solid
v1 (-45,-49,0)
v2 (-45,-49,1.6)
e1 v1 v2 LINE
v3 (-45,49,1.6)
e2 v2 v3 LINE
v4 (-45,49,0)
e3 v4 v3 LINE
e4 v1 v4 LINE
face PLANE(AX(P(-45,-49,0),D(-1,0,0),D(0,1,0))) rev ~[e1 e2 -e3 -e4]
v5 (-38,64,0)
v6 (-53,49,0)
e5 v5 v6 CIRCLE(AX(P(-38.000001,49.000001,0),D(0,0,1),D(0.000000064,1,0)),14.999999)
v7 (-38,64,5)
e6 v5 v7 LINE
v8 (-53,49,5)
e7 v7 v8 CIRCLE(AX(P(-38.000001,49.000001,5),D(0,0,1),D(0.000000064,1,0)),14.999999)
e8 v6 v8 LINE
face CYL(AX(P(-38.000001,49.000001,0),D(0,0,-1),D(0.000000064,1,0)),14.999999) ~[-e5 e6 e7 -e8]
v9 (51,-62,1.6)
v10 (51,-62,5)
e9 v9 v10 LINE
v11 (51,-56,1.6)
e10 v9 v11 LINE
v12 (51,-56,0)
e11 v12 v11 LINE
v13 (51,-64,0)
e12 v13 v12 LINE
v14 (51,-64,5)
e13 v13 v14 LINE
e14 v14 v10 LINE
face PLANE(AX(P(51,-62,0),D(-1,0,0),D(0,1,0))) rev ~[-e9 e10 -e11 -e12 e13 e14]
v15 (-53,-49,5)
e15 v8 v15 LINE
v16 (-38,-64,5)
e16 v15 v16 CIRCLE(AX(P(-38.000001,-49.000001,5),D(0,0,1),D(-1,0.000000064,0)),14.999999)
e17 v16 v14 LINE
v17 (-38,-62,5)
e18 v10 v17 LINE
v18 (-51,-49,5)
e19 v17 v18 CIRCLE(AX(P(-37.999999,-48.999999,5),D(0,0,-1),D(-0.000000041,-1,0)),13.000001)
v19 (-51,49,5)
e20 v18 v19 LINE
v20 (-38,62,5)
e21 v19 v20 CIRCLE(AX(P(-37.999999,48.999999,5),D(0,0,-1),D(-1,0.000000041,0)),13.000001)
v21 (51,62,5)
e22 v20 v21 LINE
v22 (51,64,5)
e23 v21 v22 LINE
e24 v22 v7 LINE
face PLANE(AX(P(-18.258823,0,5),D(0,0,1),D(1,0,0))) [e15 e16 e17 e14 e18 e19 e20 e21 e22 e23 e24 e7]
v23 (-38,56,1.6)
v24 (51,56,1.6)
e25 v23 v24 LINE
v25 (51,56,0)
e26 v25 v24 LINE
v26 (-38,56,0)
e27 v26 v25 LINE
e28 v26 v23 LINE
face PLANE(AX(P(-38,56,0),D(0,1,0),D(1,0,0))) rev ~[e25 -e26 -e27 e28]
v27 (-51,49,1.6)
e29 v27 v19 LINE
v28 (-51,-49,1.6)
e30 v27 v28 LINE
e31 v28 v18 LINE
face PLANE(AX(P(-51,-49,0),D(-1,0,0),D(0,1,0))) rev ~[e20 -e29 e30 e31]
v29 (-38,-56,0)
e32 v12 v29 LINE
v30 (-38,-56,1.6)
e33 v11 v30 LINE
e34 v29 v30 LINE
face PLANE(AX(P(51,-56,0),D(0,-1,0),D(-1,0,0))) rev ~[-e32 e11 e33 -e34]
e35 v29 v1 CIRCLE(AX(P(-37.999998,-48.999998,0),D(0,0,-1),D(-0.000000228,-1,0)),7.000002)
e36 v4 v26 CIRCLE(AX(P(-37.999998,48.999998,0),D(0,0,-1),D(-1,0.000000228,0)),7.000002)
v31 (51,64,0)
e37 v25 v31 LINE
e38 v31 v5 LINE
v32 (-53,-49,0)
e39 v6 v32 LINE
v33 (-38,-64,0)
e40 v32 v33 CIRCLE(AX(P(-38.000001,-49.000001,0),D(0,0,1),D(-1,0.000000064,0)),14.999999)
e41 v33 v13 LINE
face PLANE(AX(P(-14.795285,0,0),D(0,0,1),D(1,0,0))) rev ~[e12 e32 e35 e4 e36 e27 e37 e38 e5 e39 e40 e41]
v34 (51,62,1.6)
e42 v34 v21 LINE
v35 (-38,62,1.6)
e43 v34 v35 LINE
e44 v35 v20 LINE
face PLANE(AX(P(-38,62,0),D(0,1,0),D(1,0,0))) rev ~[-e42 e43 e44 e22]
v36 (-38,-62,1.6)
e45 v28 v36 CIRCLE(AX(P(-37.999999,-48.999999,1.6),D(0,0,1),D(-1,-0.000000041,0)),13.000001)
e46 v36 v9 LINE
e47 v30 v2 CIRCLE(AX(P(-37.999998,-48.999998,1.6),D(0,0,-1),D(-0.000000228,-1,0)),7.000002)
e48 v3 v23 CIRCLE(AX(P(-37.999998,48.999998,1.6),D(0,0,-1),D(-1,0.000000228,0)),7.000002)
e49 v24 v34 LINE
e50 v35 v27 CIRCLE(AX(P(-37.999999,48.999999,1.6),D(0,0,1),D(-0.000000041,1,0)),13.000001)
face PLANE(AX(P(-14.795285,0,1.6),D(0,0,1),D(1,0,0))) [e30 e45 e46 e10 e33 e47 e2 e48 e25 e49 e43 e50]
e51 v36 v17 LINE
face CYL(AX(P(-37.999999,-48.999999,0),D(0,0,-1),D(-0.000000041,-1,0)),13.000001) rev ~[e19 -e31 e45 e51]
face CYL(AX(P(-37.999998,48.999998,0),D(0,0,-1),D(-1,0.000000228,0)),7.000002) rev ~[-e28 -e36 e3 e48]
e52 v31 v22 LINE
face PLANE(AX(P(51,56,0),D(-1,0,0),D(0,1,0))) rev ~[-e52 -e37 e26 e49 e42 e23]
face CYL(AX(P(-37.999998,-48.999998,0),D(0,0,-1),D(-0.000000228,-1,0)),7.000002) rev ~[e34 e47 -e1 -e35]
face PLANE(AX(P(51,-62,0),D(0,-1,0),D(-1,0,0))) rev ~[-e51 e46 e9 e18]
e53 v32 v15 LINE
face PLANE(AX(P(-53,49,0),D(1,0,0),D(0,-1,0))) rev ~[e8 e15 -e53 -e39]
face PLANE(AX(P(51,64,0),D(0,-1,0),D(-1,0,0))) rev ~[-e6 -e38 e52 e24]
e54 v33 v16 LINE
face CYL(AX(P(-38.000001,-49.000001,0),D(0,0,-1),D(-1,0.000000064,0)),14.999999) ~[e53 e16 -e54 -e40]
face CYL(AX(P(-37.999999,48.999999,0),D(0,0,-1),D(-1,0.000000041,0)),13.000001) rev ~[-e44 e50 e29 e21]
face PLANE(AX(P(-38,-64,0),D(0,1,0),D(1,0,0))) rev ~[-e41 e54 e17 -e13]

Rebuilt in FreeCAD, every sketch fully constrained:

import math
import FreeCAD as App
import Part
import Sketcher
from FreeCAD import Vector
Q = App.Units.Quantity

doc = App.newDocument("Part")
params = doc.addObject("Spreadsheet::Sheet", "Params")
for row, (alias, value) in enumerate([
    ("sketch1_radius", "13.000001 mm"),
    ("sketch1_radius2", "7.000002 mm"),
    ("sketch1_width", "89 mm"),
    ("sketch1_height", "98 mm"),
    ("pad1_length", "1.6 mm"),
    ("sketch2_radius", "13.000001 mm"),
    ("sketch2_radius2", "14.999999 mm"),
    ("sketch2_width", "89 mm"),
    ("sketch2_height", "98 mm"),
    ("pad2_length", "5 mm"),
], start=1):
    params.set(f"A{row}", alias)
    params.set(f"B{row}", "=" + value)
    params.setAlias(f"B{row}", alias)

body = doc.addObject("PartDesign::Body", "Body")

# Sketch on XY plane
sketch1 = doc.addObject("Sketcher::SketchObject", "Sketch")
body.addObject(sketch1)
sketch1.AttachmentSupport = (doc.XY_Plane, [""])
sketch1.MapMode = "FlatFace"
sketch1.addGeometry([
    Part.LineSegment(Vector(51, 62, 0), Vector(-38, 62, 0)),  # 0
    Part.ArcOfCircle(Part.Circle(Vector(-37.999999, 48.999999, 0), Vector(0, 0, 1), 13.000001), math.radians(90.000002), math.radians(179.999998)),  # 1
    Part.LineSegment(Vector(-51, 49, 0), Vector(-51, -49, 0)),  # 2
    Part.ArcOfCircle(Part.Circle(Vector(-37.999999, -48.999999, 0), Vector(0, 0, 1), 13.000001), math.radians(-179.999998), math.radians(-90.000002)),  # 3
    Part.LineSegment(Vector(-38, -62, 0), Vector(51, -62, 0)),  # 4
    Part.LineSegment(Vector(51, -62, 0), Vector(51, -56, 0)),  # 5
    Part.LineSegment(Vector(51, -56, 0), Vector(-38, -56, 0)),  # 6
    Part.ArcOfCircle(Part.Circle(Vector(-37.999998, -48.999998, 0), Vector(0, 0, 1), 7.000002), math.radians(-179.999987), math.radians(-90.000013)),  # 7
    Part.LineSegment(Vector(-45, -49, 0), Vector(-45, 49, 0)),  # 8
    Part.ArcOfCircle(Part.Circle(Vector(-37.999998, 48.999998, 0), Vector(0, 0, 1), 7.000002), math.radians(90.000013), math.radians(179.999987)),  # 9
    Part.LineSegment(Vector(-38, 56, 0), Vector(51, 56, 0)),  # 10
    Part.LineSegment(Vector(51, 56, 0), Vector(51, 62, 0)),  # 11
], False)
sketch1.addConstraint([
    Sketcher.Constraint("Tangent", 0, 2, 1, 1),
    Sketcher.Constraint("Tangent", 1, 2, 2, 1),
    Sketcher.Constraint("Tangent", 2, 2, 3, 1),
    Sketcher.Constraint("Tangent", 3, 2, 4, 1),
    Sketcher.Constraint("Coincident", 4, 2, 5, 1),
    Sketcher.Constraint("Coincident", 5, 2, 6, 1),
    Sketcher.Constraint("Tangent", 6, 2, 7, 2),
    Sketcher.Constraint("Tangent", 7, 1, 8, 1),
    Sketcher.Constraint("Tangent", 8, 2, 9, 2),
    Sketcher.Constraint("Tangent", 9, 1, 10, 1),
    Sketcher.Constraint("Coincident", 10, 2, 11, 1),
    Sketcher.Constraint("Coincident", 11, 2, 0, 1),
    Sketcher.Constraint("Horizontal", 0),
    Sketcher.Constraint("Vertical", 2),
    Sketcher.Constraint("Horizontal", 4),
    Sketcher.Constraint("Vertical", 5),
    Sketcher.Constraint("Horizontal", 6),
    Sketcher.Constraint("Vertical", 8),
    Sketcher.Constraint("Horizontal", 10),
    Sketcher.Constraint("Vertical", 11),
    Sketcher.Constraint("Coincident", 7, 3, 3, 3),
    Sketcher.Constraint("Coincident", 9, 3, 1, 3),
    Sketcher.Constraint("Equal", 1, 3),
    Sketcher.Constraint("Symmetric", 5, 2, 10, 2, -1),
    Sketcher.Constraint("Radius", 1, Q("13.000001 mm")),
    Sketcher.Constraint("Radius", 7, Q("7.000002 mm")),
    Sketcher.Constraint("DistanceX", 0, 2, 0, 1, Q("89 mm")),
    Sketcher.Constraint("DistanceY", 2, 2, 2, 1, Q("98 mm")),
    Sketcher.Constraint("DistanceX", 1, 3, -1, 1, Q("37.999999 mm")),
])
sketch1.setExpression("Constraints[24]", "Params.sketch1_radius")
sketch1.setExpression("Constraints[25]", "Params.sketch1_radius2")
sketch1.setExpression("Constraints[26]", "Params.sketch1_width")
sketch1.setExpression("Constraints[27]", "Params.sketch1_height")
pad1 = doc.addObject("PartDesign::Pad", "Pad")
body.addObject(pad1)
pad1.Profile = sketch1
pad1.setExpression("Length", "Params.pad1_length")

# Sketch on XY plane
sketch2 = doc.addObject("Sketcher::SketchObject", "Sketch001")
body.addObject(sketch2)
sketch2.AttachmentSupport = (doc.XY_Plane, [""])
sketch2.MapMode = "FlatFace"
sketch2.addGeometry([
    Part.ArcOfCircle(Part.Circle(Vector(-37.999999, 48.999999, 0), Vector(0, 0, 1), 13.000001), math.radians(90.000002), math.radians(179.999998)),  # 0
    Part.LineSegment(Vector(-38, 62, 0), Vector(51, 62, 0)),  # 1
    Part.LineSegment(Vector(51, 62, 0), Vector(51, 64, 0)),  # 2
    Part.LineSegment(Vector(51, 64, 0), Vector(-38, 64, 0)),  # 3
    Part.ArcOfCircle(Part.Circle(Vector(-38.000001, 49.000001, 0), Vector(0, 0, 1), 14.999999), math.radians(89.999996), math.radians(180.000004)),  # 4
    Part.LineSegment(Vector(-53, 49, 0), Vector(-53, -49, 0)),  # 5
    Part.ArcOfCircle(Part.Circle(Vector(-38.000001, -49.000001, 0), Vector(0, 0, 1), 14.999999), math.radians(179.999996), math.radians(270.000004)),  # 6
    Part.LineSegment(Vector(-38, -64, 0), Vector(51, -64, 0)),  # 7
    Part.LineSegment(Vector(51, -64, 0), Vector(51, -62, 0)),  # 8
    Part.LineSegment(Vector(51, -62, 0), Vector(-38, -62, 0)),  # 9
    Part.ArcOfCircle(Part.Circle(Vector(-37.999999, -48.999999, 0), Vector(0, 0, 1), 13.000001), math.radians(-179.999998), math.radians(-90.000002)),  # 10
    Part.LineSegment(Vector(-51, -49, 0), Vector(-51, 49, 0)),  # 11
], False)
sketch2.addConstraint([
    Sketcher.Constraint("Tangent", 0, 1, 1, 1),
    Sketcher.Constraint("Coincident", 1, 2, 2, 1),
    Sketcher.Constraint("Coincident", 2, 2, 3, 1),
    Sketcher.Constraint("Tangent", 3, 2, 4, 1),
    Sketcher.Constraint("Tangent", 4, 2, 5, 1),
    Sketcher.Constraint("Tangent", 5, 2, 6, 1),
    Sketcher.Constraint("Tangent", 6, 2, 7, 1),
    Sketcher.Constraint("Coincident", 7, 2, 8, 1),
    Sketcher.Constraint("Coincident", 8, 2, 9, 1),
    Sketcher.Constraint("Tangent", 9, 2, 10, 2),
    Sketcher.Constraint("Tangent", 10, 1, 11, 1),
    Sketcher.Constraint("Tangent", 11, 2, 0, 2),
    Sketcher.Constraint("Horizontal", 1),
    Sketcher.Constraint("Vertical", 2),
    Sketcher.Constraint("Horizontal", 3),
    Sketcher.Constraint("Vertical", 5),
    Sketcher.Constraint("Horizontal", 7),
    Sketcher.Constraint("Vertical", 8),
    Sketcher.Constraint("Horizontal", 9),
    Sketcher.Constraint("Vertical", 11),
    Sketcher.Constraint("Coincident", 4, 3, 0, 3),
    Sketcher.Constraint("Coincident", 10, 3, 6, 3),
    Sketcher.Constraint("Equal", 4, 6),
    Sketcher.Constraint("Symmetric", 2, 2, 7, 2, -1),
    Sketcher.Constraint("Radius", 0, Q("13.000001 mm")),
    Sketcher.Constraint("Radius", 4, Q("14.999999 mm")),
    Sketcher.Constraint("DistanceX", 1, 1, 1, 2, Q("89 mm")),
    Sketcher.Constraint("DistanceY", 5, 2, 5, 1, Q("98 mm")),
    Sketcher.Constraint("DistanceX", 0, 3, -1, 1, Q("37.999999 mm")),
])
sketch2.setExpression("Constraints[24]", "Params.sketch2_radius")
sketch2.setExpression("Constraints[25]", "Params.sketch2_radius2")
sketch2.setExpression("Constraints[26]", "Params.sketch2_width")
sketch2.setExpression("Constraints[27]", "Params.sketch2_height")
pad2 = doc.addObject("PartDesign::Pad", "Pad001")
body.addObject(pad2)
pad2.Profile = sketch2
pad2.setExpression("Length", "Params.pad2_length")

doc.recompute()
